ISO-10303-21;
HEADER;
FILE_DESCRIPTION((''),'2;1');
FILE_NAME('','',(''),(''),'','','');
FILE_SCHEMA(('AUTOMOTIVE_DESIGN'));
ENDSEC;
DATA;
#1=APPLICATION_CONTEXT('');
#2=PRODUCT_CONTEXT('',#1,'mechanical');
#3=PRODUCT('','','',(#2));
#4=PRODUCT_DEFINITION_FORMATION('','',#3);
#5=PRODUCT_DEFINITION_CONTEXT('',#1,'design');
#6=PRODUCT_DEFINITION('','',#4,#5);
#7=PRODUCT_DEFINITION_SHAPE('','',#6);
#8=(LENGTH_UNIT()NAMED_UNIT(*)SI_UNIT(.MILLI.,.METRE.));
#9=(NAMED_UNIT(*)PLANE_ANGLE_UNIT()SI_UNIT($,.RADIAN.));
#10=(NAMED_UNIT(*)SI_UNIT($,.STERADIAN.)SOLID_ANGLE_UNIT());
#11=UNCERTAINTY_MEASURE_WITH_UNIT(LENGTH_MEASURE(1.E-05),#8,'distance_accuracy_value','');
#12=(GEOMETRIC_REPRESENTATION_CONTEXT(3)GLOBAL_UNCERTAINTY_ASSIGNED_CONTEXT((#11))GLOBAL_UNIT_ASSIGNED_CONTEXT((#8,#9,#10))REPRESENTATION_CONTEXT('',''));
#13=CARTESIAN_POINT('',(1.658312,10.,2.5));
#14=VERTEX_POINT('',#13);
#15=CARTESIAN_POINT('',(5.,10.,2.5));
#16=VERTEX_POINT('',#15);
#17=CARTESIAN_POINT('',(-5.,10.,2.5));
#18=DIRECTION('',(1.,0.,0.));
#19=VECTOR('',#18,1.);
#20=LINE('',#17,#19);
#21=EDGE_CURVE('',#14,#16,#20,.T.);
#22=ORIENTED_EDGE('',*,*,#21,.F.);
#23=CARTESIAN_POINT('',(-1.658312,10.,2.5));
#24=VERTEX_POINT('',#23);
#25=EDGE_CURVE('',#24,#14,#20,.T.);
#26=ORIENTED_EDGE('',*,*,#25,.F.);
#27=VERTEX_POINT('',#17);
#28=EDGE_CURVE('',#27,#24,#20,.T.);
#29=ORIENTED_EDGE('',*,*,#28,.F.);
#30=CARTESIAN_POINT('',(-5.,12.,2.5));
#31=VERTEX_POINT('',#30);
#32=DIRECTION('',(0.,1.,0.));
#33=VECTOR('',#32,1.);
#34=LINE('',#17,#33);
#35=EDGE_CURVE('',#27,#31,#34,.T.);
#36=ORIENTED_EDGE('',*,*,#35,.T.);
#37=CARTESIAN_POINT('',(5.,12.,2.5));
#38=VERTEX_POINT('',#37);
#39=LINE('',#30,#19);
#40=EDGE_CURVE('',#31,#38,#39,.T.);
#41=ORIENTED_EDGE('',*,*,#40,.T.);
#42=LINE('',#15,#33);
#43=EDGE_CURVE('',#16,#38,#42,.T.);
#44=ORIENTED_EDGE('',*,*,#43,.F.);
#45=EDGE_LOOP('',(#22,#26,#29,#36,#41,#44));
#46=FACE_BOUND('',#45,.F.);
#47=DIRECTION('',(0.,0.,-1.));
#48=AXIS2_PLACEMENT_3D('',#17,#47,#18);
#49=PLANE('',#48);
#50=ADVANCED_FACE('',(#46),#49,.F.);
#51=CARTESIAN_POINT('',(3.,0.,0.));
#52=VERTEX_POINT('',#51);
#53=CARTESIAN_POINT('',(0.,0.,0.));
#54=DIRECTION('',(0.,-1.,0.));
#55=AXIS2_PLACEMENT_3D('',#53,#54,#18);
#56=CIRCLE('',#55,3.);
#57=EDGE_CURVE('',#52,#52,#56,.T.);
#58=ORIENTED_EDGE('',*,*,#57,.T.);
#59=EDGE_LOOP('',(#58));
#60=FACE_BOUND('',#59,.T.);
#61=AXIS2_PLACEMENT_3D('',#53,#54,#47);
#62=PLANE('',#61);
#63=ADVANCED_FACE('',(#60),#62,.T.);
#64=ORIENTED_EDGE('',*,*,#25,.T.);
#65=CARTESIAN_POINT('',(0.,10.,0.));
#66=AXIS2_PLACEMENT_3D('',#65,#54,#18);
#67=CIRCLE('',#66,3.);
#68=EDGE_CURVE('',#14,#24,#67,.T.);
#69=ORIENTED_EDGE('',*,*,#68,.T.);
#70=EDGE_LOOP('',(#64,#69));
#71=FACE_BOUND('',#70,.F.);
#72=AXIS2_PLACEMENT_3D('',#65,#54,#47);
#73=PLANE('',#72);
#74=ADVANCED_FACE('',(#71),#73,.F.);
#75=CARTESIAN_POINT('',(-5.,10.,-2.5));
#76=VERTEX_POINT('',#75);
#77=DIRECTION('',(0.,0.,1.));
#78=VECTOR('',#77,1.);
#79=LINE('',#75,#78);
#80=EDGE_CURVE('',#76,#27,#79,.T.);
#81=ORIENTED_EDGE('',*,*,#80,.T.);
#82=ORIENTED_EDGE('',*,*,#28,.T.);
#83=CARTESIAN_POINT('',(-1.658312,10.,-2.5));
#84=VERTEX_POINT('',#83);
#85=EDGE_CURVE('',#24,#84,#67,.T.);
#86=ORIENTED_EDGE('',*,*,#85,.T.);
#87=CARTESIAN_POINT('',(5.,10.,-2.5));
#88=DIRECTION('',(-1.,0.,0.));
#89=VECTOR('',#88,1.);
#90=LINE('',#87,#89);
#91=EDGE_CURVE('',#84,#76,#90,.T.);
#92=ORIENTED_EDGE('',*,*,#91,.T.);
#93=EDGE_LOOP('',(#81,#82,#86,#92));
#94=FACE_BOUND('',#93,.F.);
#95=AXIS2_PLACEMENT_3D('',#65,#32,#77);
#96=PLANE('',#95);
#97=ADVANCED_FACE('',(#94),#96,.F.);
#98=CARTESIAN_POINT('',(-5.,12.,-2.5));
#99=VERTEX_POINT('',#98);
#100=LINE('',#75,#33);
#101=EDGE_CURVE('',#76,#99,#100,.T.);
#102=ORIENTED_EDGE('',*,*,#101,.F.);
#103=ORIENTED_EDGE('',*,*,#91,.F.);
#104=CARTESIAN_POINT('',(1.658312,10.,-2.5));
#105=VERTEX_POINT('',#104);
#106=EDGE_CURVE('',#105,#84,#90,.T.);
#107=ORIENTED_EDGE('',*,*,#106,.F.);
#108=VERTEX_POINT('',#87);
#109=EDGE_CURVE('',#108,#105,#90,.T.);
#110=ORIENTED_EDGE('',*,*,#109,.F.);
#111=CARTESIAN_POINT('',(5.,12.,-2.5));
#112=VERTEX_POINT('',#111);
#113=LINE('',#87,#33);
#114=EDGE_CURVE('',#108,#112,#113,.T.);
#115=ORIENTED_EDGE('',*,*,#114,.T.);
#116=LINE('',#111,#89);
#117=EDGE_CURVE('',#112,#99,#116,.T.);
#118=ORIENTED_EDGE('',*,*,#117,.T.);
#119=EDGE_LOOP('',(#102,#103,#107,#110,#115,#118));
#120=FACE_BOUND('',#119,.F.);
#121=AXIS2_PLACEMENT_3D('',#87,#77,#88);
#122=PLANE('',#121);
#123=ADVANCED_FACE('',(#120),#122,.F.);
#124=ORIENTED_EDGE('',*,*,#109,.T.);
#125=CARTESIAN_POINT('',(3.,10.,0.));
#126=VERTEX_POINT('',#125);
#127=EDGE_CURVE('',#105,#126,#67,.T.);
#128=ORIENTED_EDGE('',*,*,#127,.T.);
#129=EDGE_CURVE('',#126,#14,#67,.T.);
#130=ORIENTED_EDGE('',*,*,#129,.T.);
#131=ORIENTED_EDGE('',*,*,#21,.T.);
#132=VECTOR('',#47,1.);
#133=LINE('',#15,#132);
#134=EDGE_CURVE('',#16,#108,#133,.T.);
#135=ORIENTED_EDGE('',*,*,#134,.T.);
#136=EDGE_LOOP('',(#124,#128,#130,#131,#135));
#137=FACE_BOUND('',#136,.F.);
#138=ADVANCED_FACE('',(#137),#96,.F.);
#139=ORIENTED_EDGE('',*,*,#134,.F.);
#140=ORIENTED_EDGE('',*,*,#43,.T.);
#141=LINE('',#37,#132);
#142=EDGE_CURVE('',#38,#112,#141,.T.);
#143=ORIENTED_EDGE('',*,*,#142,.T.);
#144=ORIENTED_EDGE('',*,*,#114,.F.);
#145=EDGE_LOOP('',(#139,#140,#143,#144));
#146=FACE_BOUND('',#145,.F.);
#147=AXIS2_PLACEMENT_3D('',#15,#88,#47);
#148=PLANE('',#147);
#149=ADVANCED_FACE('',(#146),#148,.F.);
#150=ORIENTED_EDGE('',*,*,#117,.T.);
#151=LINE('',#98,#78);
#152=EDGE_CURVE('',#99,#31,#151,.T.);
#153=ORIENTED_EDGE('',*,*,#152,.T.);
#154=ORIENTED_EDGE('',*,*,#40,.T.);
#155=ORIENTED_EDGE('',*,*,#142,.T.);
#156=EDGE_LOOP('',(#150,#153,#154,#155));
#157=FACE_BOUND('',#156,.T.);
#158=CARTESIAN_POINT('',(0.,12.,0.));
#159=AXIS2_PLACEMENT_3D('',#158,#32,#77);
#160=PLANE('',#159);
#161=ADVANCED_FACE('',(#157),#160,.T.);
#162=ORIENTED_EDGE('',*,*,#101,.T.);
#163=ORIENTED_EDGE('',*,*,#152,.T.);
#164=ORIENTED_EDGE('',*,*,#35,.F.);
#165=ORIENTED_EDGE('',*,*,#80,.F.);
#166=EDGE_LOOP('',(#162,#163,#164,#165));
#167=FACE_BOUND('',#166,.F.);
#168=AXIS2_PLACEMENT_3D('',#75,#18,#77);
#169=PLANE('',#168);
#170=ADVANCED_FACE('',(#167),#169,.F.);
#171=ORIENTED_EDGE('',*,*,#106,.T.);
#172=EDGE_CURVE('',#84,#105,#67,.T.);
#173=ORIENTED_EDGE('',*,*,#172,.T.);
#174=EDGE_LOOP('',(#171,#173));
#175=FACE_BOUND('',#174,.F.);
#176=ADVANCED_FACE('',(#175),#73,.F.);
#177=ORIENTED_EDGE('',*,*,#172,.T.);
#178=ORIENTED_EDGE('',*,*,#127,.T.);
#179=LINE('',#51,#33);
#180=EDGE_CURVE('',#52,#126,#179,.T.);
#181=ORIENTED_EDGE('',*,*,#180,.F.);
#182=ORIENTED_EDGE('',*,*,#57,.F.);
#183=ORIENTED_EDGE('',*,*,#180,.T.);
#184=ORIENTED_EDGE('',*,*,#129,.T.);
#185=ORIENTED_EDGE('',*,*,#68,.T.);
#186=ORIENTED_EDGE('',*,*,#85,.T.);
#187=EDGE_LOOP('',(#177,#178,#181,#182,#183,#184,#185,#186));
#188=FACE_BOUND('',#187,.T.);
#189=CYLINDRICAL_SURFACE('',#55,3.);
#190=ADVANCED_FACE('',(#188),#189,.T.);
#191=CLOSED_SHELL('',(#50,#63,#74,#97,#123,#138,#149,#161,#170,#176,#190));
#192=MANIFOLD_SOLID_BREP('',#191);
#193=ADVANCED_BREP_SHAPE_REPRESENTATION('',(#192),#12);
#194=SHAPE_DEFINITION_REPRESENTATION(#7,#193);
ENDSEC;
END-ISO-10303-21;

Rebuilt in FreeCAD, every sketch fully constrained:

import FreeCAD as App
import Part
import Sketcher

V = App.Vector


def add_polygon(sketch, points):
    """Adds a closed chain of lines whose ends are joined by coincident constraints."""
    first, n = sketch.GeometryCount, len(points)
    for a, b in zip(points, points[1:] + points[:1]):
        sketch.addGeometry(Part.LineSegment(App.Vector(*a, 0), App.Vector(*b, 0)), False)
    for i in range(n):
        sketch.addConstraint(Sketcher.Constraint("Coincident", first + i, 2, first + (i + 1) % n, 1))

doc = App.newDocument("Part")
body = doc.addObject("PartDesign::Body", "Body")

# Sketch on XZ plane
sketch1 = body.newObject("Sketcher::SketchObject", "Sketch")
sketch1.AttachmentSupport = (doc.getObject("XZ_Plane"), [""])
sketch1.MapMode = "FlatFace"
sketch1.addGeometry(Part.Circle(V(0, 0, 0), V(0, 0, 1), 3), False)
sketch1.addConstraint([
    Sketcher.Constraint("Coincident", 0, 3, -1, 1),
    Sketcher.Constraint("Diameter", 0, 6.0),
])
pad1 = body.newObject("PartDesign::Pad", "Pad")
pad1.Profile = sketch1
pad1.Length = 10
pad1.Reversed = True

# Sketch on XZ plane
sketch2 = body.newObject("Sketcher::SketchObject", "Sketch001")
sketch2.AttachmentSupport = (doc.getObject("XZ_Plane"), [""])
sketch2.MapMode = "FlatFace"
sketch2.AttachmentOffset = App.Placement(V(0, 0, -10), App.Rotation())
add_polygon(sketch2, [(-5, -2), (-5, 2), (5, 2), (5, -2)])  # lines 0-3
sketch2.addConstraint([
    Sketcher.Constraint("Vertical", 0),
    Sketcher.Constraint("Horizontal", 1),
    Sketcher.Constraint("Vertical", 2),
    Sketcher.Constraint("Horizontal", 3),
    Sketcher.Constraint("Symmetric", 0, 2, 2, 2, -1, 1),
    Sketcher.Constraint("DistanceX", 1, 1, 1, 2, 10.0),
    Sketcher.Constraint("DistanceY", 0, 1, 0, 2, 5.0),
])
pad2 = body.newObject("PartDesign::Pad", "Pad001")
pad2.Profile = sketch2
pad2.Length = 2
pad2.Reversed = True

doc.recompute()
